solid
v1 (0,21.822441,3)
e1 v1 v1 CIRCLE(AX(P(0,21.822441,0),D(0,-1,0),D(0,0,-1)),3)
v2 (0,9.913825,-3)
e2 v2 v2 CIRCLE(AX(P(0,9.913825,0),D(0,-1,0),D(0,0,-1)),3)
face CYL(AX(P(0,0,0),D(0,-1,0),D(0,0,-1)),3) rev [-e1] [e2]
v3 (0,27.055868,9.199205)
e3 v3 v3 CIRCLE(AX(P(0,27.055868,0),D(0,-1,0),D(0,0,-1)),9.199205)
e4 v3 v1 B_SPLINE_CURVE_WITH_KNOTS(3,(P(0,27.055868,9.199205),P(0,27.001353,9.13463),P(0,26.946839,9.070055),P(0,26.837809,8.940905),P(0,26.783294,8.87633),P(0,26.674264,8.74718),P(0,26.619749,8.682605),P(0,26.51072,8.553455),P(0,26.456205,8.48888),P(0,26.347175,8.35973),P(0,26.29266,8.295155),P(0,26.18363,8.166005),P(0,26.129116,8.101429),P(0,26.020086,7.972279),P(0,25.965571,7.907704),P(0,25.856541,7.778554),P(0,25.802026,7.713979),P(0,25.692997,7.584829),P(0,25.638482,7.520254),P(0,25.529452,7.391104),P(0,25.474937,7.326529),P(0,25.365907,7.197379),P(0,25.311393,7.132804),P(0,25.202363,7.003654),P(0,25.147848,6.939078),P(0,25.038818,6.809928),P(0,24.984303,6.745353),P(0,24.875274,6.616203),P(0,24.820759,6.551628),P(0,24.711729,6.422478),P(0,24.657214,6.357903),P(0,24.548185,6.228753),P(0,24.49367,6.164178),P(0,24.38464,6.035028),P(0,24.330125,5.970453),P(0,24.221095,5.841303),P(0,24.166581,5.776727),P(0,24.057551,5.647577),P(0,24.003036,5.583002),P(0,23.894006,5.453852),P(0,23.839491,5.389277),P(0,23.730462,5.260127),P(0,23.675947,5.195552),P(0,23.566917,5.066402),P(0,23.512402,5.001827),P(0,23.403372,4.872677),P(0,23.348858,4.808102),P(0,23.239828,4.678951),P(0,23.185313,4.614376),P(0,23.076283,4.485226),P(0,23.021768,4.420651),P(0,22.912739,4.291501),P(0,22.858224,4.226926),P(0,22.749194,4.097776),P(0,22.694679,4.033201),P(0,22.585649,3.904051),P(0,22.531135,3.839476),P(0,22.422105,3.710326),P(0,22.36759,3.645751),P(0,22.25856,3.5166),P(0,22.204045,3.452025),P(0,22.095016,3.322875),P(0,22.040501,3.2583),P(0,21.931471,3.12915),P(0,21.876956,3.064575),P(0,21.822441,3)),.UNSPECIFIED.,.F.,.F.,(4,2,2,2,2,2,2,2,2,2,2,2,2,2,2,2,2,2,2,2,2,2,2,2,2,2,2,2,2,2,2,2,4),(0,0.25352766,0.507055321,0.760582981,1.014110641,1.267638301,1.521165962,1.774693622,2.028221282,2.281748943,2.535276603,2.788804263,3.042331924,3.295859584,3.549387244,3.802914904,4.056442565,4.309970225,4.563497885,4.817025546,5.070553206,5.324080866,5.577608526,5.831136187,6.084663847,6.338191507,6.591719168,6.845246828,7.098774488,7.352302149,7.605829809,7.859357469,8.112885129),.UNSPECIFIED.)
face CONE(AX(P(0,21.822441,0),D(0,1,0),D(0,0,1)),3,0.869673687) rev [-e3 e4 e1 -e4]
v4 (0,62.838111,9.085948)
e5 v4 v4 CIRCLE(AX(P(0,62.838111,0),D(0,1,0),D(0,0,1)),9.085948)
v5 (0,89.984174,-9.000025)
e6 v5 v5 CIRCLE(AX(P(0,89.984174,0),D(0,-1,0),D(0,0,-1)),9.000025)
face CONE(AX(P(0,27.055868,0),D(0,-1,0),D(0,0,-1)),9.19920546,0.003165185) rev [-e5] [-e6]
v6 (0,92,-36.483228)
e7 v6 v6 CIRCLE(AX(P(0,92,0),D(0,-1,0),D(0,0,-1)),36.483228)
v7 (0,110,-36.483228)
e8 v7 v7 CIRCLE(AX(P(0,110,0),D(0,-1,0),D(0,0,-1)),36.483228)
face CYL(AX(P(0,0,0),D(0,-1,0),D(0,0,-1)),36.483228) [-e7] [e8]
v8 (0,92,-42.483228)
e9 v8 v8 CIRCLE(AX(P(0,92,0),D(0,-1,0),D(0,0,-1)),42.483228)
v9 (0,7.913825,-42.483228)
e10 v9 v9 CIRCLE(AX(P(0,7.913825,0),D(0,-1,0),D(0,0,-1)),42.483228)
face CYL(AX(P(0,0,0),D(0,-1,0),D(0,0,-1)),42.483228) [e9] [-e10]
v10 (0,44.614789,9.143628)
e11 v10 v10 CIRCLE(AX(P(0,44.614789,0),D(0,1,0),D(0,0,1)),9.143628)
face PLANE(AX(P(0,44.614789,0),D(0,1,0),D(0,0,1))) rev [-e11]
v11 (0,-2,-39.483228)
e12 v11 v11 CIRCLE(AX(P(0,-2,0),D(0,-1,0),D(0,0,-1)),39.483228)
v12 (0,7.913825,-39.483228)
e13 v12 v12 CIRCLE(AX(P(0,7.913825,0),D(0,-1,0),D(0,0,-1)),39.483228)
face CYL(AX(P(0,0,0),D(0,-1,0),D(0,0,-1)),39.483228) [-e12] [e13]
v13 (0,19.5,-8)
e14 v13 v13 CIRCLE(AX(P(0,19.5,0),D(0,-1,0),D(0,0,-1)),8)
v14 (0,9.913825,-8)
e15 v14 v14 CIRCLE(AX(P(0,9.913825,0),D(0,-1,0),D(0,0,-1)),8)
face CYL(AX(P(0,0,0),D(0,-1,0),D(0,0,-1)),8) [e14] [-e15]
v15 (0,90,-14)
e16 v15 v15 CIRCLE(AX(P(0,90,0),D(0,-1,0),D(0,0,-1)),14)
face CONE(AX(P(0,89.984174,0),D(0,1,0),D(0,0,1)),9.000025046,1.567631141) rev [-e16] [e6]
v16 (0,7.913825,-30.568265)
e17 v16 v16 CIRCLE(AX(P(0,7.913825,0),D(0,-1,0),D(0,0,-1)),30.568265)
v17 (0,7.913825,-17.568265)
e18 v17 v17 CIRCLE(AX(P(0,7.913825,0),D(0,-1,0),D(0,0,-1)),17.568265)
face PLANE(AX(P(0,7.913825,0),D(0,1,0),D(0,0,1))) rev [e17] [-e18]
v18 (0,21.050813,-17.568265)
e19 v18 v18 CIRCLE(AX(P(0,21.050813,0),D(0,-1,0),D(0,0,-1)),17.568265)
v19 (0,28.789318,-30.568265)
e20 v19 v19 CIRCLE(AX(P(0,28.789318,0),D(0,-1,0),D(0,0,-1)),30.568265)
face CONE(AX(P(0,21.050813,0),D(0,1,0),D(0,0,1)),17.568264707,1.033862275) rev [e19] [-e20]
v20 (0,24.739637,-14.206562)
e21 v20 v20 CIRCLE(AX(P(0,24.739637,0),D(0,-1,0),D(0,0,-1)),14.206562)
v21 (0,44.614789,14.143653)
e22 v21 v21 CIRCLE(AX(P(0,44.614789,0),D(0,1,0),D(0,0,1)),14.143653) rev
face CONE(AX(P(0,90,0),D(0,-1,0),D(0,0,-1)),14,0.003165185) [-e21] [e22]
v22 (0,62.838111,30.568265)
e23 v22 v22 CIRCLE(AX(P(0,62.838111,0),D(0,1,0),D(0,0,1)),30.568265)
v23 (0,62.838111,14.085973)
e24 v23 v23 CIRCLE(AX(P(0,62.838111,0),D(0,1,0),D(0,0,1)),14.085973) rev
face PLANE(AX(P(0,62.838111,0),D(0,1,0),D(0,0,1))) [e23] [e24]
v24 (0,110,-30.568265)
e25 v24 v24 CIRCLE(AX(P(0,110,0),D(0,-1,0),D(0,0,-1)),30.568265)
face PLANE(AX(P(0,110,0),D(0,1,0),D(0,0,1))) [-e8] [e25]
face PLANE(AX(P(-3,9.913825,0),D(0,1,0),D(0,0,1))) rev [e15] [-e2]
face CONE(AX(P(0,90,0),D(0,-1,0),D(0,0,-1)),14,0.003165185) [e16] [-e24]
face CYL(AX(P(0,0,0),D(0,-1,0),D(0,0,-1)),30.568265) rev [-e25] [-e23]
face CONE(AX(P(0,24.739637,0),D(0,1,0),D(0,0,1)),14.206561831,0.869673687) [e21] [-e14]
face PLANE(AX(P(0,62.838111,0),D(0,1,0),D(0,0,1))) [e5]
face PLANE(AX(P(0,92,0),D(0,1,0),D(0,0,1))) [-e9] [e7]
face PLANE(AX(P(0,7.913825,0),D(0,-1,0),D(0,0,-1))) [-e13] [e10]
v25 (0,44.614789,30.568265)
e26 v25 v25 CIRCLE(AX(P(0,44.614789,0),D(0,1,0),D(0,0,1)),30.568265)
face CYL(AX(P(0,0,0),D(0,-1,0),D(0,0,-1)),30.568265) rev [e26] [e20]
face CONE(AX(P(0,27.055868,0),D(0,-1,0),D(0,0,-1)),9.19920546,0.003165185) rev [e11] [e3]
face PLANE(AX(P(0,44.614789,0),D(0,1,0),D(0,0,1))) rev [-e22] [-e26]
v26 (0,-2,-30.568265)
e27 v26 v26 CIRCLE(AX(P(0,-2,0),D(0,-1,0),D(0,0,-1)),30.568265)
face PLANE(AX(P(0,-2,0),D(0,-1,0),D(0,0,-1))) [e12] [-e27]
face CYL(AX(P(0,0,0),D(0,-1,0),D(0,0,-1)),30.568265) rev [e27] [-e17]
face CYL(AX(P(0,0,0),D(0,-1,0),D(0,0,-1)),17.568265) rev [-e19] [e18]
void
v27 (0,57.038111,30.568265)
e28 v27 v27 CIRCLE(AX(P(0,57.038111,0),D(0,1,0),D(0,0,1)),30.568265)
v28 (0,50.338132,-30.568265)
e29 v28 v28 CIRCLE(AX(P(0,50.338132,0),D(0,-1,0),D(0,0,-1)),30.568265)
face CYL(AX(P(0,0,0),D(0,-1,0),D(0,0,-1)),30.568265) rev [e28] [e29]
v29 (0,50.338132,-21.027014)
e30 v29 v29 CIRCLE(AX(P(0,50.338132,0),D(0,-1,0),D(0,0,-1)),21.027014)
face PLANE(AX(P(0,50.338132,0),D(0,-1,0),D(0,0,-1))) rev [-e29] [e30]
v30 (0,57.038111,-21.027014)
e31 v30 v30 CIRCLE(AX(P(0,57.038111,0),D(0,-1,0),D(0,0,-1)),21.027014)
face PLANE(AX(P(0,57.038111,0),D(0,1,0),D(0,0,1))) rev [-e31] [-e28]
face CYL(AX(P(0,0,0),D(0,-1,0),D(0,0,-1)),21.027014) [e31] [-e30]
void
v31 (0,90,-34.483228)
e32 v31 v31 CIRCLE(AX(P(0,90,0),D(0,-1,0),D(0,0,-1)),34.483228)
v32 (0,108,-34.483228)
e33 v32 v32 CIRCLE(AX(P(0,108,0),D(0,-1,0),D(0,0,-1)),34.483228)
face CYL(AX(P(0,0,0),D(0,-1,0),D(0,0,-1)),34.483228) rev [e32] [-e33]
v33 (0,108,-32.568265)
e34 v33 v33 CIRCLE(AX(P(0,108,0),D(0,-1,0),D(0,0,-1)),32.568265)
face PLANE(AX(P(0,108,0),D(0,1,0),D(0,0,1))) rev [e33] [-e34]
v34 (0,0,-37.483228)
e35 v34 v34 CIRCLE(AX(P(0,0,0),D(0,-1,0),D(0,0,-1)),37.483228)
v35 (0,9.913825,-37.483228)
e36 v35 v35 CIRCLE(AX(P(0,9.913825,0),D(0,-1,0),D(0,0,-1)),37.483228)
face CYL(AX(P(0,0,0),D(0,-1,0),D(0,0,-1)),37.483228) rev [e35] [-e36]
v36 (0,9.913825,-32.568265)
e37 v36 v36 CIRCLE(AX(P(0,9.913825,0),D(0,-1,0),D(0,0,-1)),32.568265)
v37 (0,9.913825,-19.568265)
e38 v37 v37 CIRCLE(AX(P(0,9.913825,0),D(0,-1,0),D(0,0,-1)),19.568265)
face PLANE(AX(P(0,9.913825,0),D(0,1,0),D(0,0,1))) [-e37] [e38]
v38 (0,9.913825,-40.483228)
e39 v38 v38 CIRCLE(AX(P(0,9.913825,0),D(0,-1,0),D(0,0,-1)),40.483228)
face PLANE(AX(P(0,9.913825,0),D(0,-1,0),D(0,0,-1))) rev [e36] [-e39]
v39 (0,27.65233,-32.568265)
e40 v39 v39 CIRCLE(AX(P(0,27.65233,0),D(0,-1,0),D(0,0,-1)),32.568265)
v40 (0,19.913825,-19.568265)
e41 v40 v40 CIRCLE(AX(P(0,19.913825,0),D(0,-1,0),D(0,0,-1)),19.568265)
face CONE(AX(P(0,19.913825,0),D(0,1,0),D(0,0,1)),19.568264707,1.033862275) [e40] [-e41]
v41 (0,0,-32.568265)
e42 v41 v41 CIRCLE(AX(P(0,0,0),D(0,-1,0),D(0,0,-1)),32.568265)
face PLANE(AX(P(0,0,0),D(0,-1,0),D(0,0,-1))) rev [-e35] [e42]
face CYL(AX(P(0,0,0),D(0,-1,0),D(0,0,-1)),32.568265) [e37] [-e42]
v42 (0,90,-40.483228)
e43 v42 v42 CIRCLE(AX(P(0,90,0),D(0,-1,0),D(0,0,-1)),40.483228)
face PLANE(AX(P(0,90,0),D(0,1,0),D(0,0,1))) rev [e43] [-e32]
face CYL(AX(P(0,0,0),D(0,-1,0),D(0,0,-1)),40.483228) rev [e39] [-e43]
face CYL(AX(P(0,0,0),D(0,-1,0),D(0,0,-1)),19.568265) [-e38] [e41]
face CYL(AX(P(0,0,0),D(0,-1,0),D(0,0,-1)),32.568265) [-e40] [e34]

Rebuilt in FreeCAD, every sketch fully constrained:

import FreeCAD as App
import Part
import Sketcher

V = App.Vector
Q = App.Units.Quantity

doc = App.newDocument("Part")
body = doc.addObject("PartDesign::Body", "Body")

# Sketch on XY plane
sketch1 = body.newObject("Sketcher::SketchObject", "Sketch")
sketch1.AttachmentSupport = (doc.getObject("XY_Plane"), [""])
sketch1.MapMode = "FlatFace"
sketch1.addGeometry([
    Part.LineSegment(V(-39.5, -2, 0), V(-30.6, -2, 0)),  # 0
    Part.LineSegment(V(-30.6, -2, 0), V(-30.6, 7.9, 0)),  # 1
    Part.LineSegment(V(-30.6, 7.9, 0), V(-17.6, 7.9, 0)),  # 2
    Part.LineSegment(V(-17.6, 7.9, 0), V(-17.6, 21.1, 0)),  # 3
    Part.LineSegment(V(-17.6, 21.1, 0), V(-30.6, 28.8, 0)),  # 4
    Part.LineSegment(V(-30.6, 28.8, 0), V(-30.6, 110, 0)),  # 5
    Part.LineSegment(V(-30.6, 110, 0), V(-36.5, 110, 0)),  # 6
    Part.LineSegment(V(-36.5, 110, 0), V(-36.5, 92, 0)),  # 7
    Part.LineSegment(V(-36.5, 92, 0), V(-42.5, 92, 0)),  # 8
    Part.LineSegment(V(-42.5, 92, 0), V(-42.5, 7.9, 0)),  # 9
    Part.LineSegment(V(-42.5, 7.9, 0), V(-39.5, 7.9, 0)),  # 10
    Part.LineSegment(V(-39.5, 7.9, 0), V(-39.5, -2, 0)),  # 11
    Part.LineSegment(V(-32.6, 0, 0), V(-37.5, 0, 0)),  # 12
    Part.LineSegment(V(-37.5, 0, 0), V(-37.5, 9.9, 0)),  # 13
    Part.LineSegment(V(-37.5, 9.9, 0), V(-40.5, 9.9, 0)),  # 14
    Part.LineSegment(V(-40.5, 9.9, 0), V(-40.5, 90, 0)),  # 15
    Part.LineSegment(V(-40.5, 90, 0), V(-34.5, 90, 0)),  # 16
    Part.LineSegment(V(-34.5, 90, 0), V(-34.5, 108, 0)),  # 17
    Part.LineSegment(V(-34.5, 108, 0), V(-32.6, 108, 0)),  # 18
    Part.LineSegment(V(-32.6, 108, 0), V(-32.6, 27.7, 0)),  # 19
    Part.LineSegment(V(-32.6, 27.7, 0), V(-19.6, 19.9, 0)),  # 20
    Part.LineSegment(V(-19.6, 19.9, 0), V(-19.6, 9.9, 0)),  # 21
    Part.LineSegment(V(-19.6, 9.9, 0), V(-32.6, 9.9, 0)),  # 22
    Part.LineSegment(V(-32.6, 9.9, 0), V(-32.6, 0, 0)),  # 23
], False)
sketch1.addConstraint([
    Sketcher.Constraint("Coincident", 0, 2, 1, 1),
    Sketcher.Constraint("Coincident", 1, 2, 2, 1),
    Sketcher.Constraint("Coincident", 2, 2, 3, 1),
    Sketcher.Constraint("Coincident", 3, 2, 4, 1),
    Sketcher.Constraint("Coincident", 4, 2, 5, 1),
    Sketcher.Constraint("Coincident", 5, 2, 6, 1),
    Sketcher.Constraint("Coincident", 6, 2, 7, 1),
    Sketcher.Constraint("Coincident", 7, 2, 8, 1),
    Sketcher.Constraint("Coincident", 8, 2, 9, 1),
    Sketcher.Constraint("Coincident", 9, 2, 10, 1),
    Sketcher.Constraint("Coincident", 10, 2, 11, 1),
    Sketcher.Constraint("Coincident", 11, 2, 0, 1),
    Sketcher.Constraint("Coincident", 12, 2, 13, 1),
    Sketcher.Constraint("Coincident", 13, 2, 14, 1),
    Sketcher.Constraint("Coincident", 14, 2, 15, 1),
    Sketcher.Constraint("Coincident", 15, 2, 16, 1),
    Sketcher.Constraint("Coincident", 16, 2, 17, 1),
    Sketcher.Constraint("Coincident", 17, 2, 18, 1),
    Sketcher.Constraint("Coincident", 18, 2, 19, 1),
    Sketcher.Constraint("Coincident", 19, 2, 20, 1),
    Sketcher.Constraint("Coincident", 20, 2, 21, 1),
    Sketcher.Constraint("Coincident", 21, 2, 22, 1),
    Sketcher.Constraint("Coincident", 22, 2, 23, 1),
    Sketcher.Constraint("Coincident", 23, 2, 12, 1),
    Sketcher.Constraint("Horizontal", 0),
    Sketcher.Constraint("Vertical", 1),
    Sketcher.Constraint("Horizontal", 2),
    Sketcher.Constraint("Vertical", 3),
    Sketcher.Constraint("Vertical", 5),
    Sketcher.Constraint("Horizontal", 6),
    Sketcher.Constraint("Vertical", 7),
    Sketcher.Constraint("Horizontal", 8),
    Sketcher.Constraint("Vertical", 9),
    Sketcher.Constraint("Horizontal", 10),
    Sketcher.Constraint("Vertical", 11),
    Sketcher.Constraint("Horizontal", 12),
    Sketcher.Constraint("Vertical", 13),
    Sketcher.Constraint("Horizontal", 14),
    Sketcher.Constraint("Vertical", 15),
    Sketcher.Constraint("Horizontal", 16),
    Sketcher.Constraint("Vertical", 17),
    Sketcher.Constraint("Horizontal", 18),
    Sketcher.Constraint("Vertical", 19),
    Sketcher.Constraint("Vertical", 21),
    Sketcher.Constraint("Horizontal", 22),
    Sketcher.Constraint("Vertical", 23),
    Sketcher.Constraint("PointOnObject", 12, 2, -1),
    Sketcher.Constraint("Parallel", 4, 20),
    Sketcher.Constraint("Horizontal", 2, 2, 9, 2),
    Sketcher.Constraint("Horizontal", 14, 2, 21, 2),
    Sketcher.Constraint("Vertical", 1, 2, 4, 2),
    Sketcher.Constraint("Vertical", 19, 2, 22, 2),
    Sketcher.Constraint("Equal", 10, 14),
    Sketcher.Constraint("Equal", 8, 16),
    Sketcher.Constraint("Equal", 2, 22),
    Sketcher.Constraint("Equal", 11, 13),
    Sketcher.Constraint("Equal", 7, 17),
    Sketcher.Constraint("DistanceX", 2, 1, 2, 2, Q("13 mm")),
    Sketcher.Constraint("DistanceX", 8, 2, 8, 1, Q("6 mm")),
    Sketcher.Constraint("DistanceX", 10, 1, 10, 2, Q("3 mm")),
    Sketcher.Constraint("DistanceY", 7, 2, 7, 1, Q("18 mm")),
    Sketcher.Constraint("DistanceY", 21, 2, 21, 1, Q("10 mm")),
    Sketcher.Constraint("DistanceY", 0, 2, -1, 1, Q("2 mm")),
    Sketcher.Constraint("DistanceY", -1, 1, 5, 2, Q("110 mm")),
    Sketcher.Constraint("DistanceY", -1, 1, 15, 2, Q("90 mm")),
    Sketcher.Constraint("DistanceX", 11, 2, 12, 2, Q("2 mm")),
    Sketcher.Constraint("DistanceX", 18, 2, 5, 2, Q("2 mm")),
    Sketcher.Constraint("DistanceY", 3, 1, 3, 2, Q("13.136988 mm")),
    Sketcher.Constraint("DistanceY", 5, 1, 5, 2, Q("81.210682 mm")),
    Sketcher.Constraint("Distance", 4, Q("15.128928 mm")),
    Sketcher.Constraint("DistanceX", 0, 1, 0, 2, Q("8.914963 mm")),
    Sketcher.Constraint("DistanceX", 0, 2, -1, 1, Q("30.568265 mm")),
])
revolution = body.newObject("PartDesign::Revolution", "Revolution")
revolution.Profile = sketch1
revolution.ReferenceAxis = (sketch1, ["V_Axis"])
revolution.Angle = 360
body2 = doc.addObject("PartDesign::Body", "Body001")

# Sketch on XY plane
sketch2 = body2.newObject("Sketcher::SketchObject", "Sketch001")
sketch2.AttachmentSupport = (doc.getObject("XY_Plane001"), [""])
sketch2.MapMode = "FlatFace"
sketch2.addGeometry([
    Part.LineSegment(V(-8, 19.5, 0), V(-8, 9.9, 0)),  # 0
    Part.LineSegment(V(-8, 9.9, 0), V(-3, 9.9, 0)),  # 1
    Part.LineSegment(V(-3, 9.9, 0), V(-3, 21.8, 0)),  # 2
    Part.LineSegment(V(-3, 21.8, 0), V(-9.2, 27.1, 0)),  # 3
    Part.LineSegment(V(-9.2, 27.1, 0), V(-9, 90, 0)),  # 4
    Part.LineSegment(V(-9, 90, 0), V(-14, 90, 0)),  # 5
    Part.LineSegment(V(-14, 90, 0), V(-14.2, 24.7, 0)),  # 6
    Part.LineSegment(V(-14.2, 24.7, 0), V(-8, 19.5, 0)),  # 7
], False)
sketch2.addConstraint([
    Sketcher.Constraint("Coincident", 0, 2, 1, 1),
    Sketcher.Constraint("Coincident", 1, 2, 2, 1),
    Sketcher.Constraint("Coincident", 2, 2, 3, 1),
    Sketcher.Constraint("Coincident", 3, 2, 4, 1),
    Sketcher.Constraint("Coincident", 4, 2, 5, 1),
    Sketcher.Constraint("Coincident", 5, 2, 6, 1),
    Sketcher.Constraint("Coincident", 6, 2, 7, 1),
    Sketcher.Constraint("Coincident", 7, 2, 0, 1),
    Sketcher.Constraint("Vertical", 0),
    Sketcher.Constraint("Horizontal", 1),
    Sketcher.Constraint("Vertical", 2),
    Sketcher.Constraint("Perpendicular", 4, 5),
    Sketcher.Constraint("Perpendicular", 5, 6),
    Sketcher.Constraint("Parallel", 3, 7),
    Sketcher.Constraint("DistanceX", 1, 1, 1, 2, Q("5 mm")),
    Sketcher.Constraint("Distance", 5, Q("5 mm")),
    Sketcher.Constraint("DistanceX", 0, 2, -1, 1, Q("8 mm")),
    Sketcher.Constraint("DistanceX", 5, 2, -1, 1, Q("14 mm")),
    Sketcher.Constraint("DistanceY", -1, 1, 5, 2, Q("90 mm")),
    Sketcher.Constraint("DistanceY", -1, 1, 7, 2, Q("19.5 mm")),
    Sketcher.Constraint("Distance", 4, Q("62.928621 mm")),
    Sketcher.Constraint("Distance", 6, Q("65.26069 mm")),
    Sketcher.Constraint("DistanceY", 0, 2, 0, 1, Q("9.586175 mm")),
    Sketcher.Constraint("DistanceY", 2, 1, 2, 2, Q("11.908617 mm")),
])
revolution2 = body2.newObject("PartDesign::Revolution", "Revolution001")
revolution2.Profile = sketch2
revolution2.ReferenceAxis = (sketch2, ["V_Axis"])
revolution2.Angle = 360
body.AllowCompound = True
doc.recompute()

boolean = body.newObject("PartDesign::Boolean", "Boolean")
boolean.Type = "Fuse"
boolean.addObjects([body2])

# Sketch on XY plane
sketch3 = body.newObject("Sketcher::SketchObject", "Sketch002")
sketch3.AttachmentSupport = (doc.getObject("XY_Plane"), [""])
sketch3.MapMode = "FlatFace"
sketch3.addGeometry([
    Part.LineSegment(V(-21, 57, 0), V(-21, 50, 0)),  # 0
    Part.LineSegment(V(-21, 50, 0), V(-33, 50, 0)),  # 1
    Part.LineSegment(V(-33, 50, 0), V(-33, 45, 0)),  # 2
    Part.LineSegment(V(-33, 45, 0), V(0, 45, 0)),  # 3
    Part.LineSegment(V(0, 45, 0), V(0, 63, 0)),  # 4
    Part.LineSegment(V(0, 63, 0), V(-33, 63, 0)),  # 5
    Part.LineSegment(V(-33, 63, 0), V(-33, 57, 0)),  # 6
    Part.LineSegment(V(-33, 57, 0), V(-21, 57, 0)),  # 7
], False)
sketch3.addConstraint([
    Sketcher.Constraint("Coincident", 0, 2, 1, 1),
    Sketcher.Constraint("Coincident", 1, 2, 2, 1),
    Sketcher.Constraint("Coincident", 2, 2, 3, 1),
    Sketcher.Constraint("Coincident", 3, 2, 4, 1),
    Sketcher.Constraint("Coincident", 4, 2, 5, 1),
    Sketcher.Constraint("Coincident", 5, 2, 6, 1),
    Sketcher.Constraint("Coincident", 6, 2, 7, 1),
    Sketcher.Constraint("Coincident", 7, 2, 0, 1),
    Sketcher.Constraint("Vertical", 0),
    Sketcher.Constraint("Horizontal", 1),
    Sketcher.Constraint("Vertical", 2),
    Sketcher.Constraint("Horizontal", 3),
    Sketcher.Constraint("Vertical", 4),
    Sketcher.Constraint("Horizontal", 5),
    Sketcher.Constraint("Vertical", 6),
    Sketcher.Constraint("Horizontal", 7),
    Sketcher.Constraint("PointOnObject", 3, 2, -2),
    Sketcher.Constraint("Vertical", 2, 2, 5, 2),
    Sketcher.Constraint("DistanceY", 6, 2, 6, 1, Q("5.8 mm")),
    Sketcher.Constraint("DistanceX", 3, 1, 3, 2, Q("32.562812 mm")),
    Sketcher.Constraint("DistanceY", 0, 2, 0, 1, Q("6.699979 mm")),
    Sketcher.Constraint("DistanceX", 1, 2, 1, 1, Q("11.535797 mm")),
    Sketcher.Constraint("DistanceY", 2, 2, 2, 1, Q("5.723343 mm")),
    Sketcher.Constraint("DistanceY", -1, 1, 2, 2, Q("44.614789 mm")),
])
revolution3 = body.newObject("PartDesign::Revolution", "Revolution002")
revolution3.Profile = sketch3
revolution3.ReferenceAxis = (sketch3, ["V_Axis"])
revolution3.Angle = 360

doc.recompute()
